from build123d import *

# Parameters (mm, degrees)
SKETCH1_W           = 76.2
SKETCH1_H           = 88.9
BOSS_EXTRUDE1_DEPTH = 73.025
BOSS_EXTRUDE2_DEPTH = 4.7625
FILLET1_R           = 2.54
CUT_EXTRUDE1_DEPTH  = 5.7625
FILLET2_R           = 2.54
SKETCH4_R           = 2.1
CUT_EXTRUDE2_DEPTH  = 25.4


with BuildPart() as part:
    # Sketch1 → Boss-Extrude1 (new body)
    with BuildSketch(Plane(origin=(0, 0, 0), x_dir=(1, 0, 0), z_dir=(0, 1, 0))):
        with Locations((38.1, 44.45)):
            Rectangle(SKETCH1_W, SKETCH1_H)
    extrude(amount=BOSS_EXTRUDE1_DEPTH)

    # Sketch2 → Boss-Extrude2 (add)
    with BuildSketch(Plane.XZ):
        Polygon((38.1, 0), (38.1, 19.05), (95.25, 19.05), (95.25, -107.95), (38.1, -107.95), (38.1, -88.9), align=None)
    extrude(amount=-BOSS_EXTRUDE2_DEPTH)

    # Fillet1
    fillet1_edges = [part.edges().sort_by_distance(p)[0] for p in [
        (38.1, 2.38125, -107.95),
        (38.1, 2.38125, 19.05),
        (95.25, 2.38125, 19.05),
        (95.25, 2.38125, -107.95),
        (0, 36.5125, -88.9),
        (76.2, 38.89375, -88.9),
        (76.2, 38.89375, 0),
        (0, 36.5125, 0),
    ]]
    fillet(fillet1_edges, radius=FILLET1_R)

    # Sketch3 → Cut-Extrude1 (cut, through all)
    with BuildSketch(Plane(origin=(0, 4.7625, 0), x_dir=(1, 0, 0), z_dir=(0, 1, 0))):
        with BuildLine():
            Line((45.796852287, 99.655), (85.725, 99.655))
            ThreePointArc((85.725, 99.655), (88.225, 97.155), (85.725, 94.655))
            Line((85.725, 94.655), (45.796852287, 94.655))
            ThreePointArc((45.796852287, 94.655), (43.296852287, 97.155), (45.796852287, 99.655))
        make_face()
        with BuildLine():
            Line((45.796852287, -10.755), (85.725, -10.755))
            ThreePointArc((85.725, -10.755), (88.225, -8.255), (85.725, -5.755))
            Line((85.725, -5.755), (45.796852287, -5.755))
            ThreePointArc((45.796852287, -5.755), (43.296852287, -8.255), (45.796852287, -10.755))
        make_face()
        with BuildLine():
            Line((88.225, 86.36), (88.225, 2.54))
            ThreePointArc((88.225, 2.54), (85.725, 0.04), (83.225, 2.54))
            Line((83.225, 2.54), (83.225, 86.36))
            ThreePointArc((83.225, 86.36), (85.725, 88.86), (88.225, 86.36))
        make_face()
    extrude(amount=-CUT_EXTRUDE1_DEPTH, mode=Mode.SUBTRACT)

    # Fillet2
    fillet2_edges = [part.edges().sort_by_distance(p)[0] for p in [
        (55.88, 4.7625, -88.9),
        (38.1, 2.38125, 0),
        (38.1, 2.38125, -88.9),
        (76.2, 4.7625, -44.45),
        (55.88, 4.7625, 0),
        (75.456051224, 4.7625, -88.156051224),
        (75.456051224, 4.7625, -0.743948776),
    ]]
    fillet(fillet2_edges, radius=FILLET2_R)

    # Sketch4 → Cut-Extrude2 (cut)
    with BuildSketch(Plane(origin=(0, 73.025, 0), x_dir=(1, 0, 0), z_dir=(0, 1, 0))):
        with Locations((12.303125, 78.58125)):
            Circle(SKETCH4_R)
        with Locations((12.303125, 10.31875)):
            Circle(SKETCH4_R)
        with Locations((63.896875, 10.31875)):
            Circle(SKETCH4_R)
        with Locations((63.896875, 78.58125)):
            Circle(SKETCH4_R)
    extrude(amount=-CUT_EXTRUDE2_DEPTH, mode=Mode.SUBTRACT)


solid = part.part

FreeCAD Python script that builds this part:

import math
import FreeCAD as App
import Part
import Sketcher

V = App.Vector
Q = App.Units.Quantity


def edges_at(feature, points):
    """Names of the edges that pass closest to the given points."""
    edges = feature.Shape.Edges
    near = lambda p: min(range(len(edges)), key=lambda i: edges[i].distToShape(Part.Vertex(*p))[0])
    return sorted({f"Edge{near(p) + 1}" for p in points})

doc = App.newDocument("Part")
body = doc.addObject("PartDesign::Body", "Body")

sketch1 = doc.addObject("Sketcher::SketchObject", "Sketch")
body.addObject(sketch1)
sketch1.AttachmentSupport = (doc.XZ_Plane, [""])
sketch1.MapMode = "FlatFace"
sketch1.addGeometry([
    Part.LineSegment(V(0, -88.9, 0), V(0, 0, 0)),
    Part.LineSegment(V(0, 0, 0), V(76.2, 0, 0)),
    Part.LineSegment(V(76.2, 0, 0), V(76.2, -88.9, 0)),
    Part.LineSegment(V(76.2, -88.9, 0), V(0, -88.9, 0)),
], False)
sketch1.addConstraint([
    Sketcher.Constraint("Coincident", 0, 2, 1, 1),
    Sketcher.Constraint("Coincident", 1, 2, 2, 1),
    Sketcher.Constraint("Coincident", 2, 2, 3, 1),
    Sketcher.Constraint("Coincident", 3, 2, 0, 1),
    Sketcher.Constraint("Vertical", 0),
    Sketcher.Constraint("Horizontal", 1),
    Sketcher.Constraint("Vertical", 2),
    Sketcher.Constraint("Horizontal", 3),
    Sketcher.Constraint("Coincident", 0, 2, -1, 1),
    Sketcher.Constraint("DistanceX", 1, 1, 1, 2, Q("3 in")),
    Sketcher.Constraint("DistanceY", 0, 1, 0, 2, Q("3.5 in")),
])
pad1 = doc.addObject("PartDesign::Pad", "Pad")
body.addObject(pad1)
pad1.Profile = sketch1
pad1.Length = Q("2.875 in")
pad1.Reversed = True

sketch2 = doc.addObject("Sketcher::SketchObject", "Sketch001")
body.addObject(sketch2)
sketch2.AttachmentSupport = (doc.XZ_Plane, [""])
sketch2.MapMode = "FlatFace"
sketch2.addGeometry([
    Part.LineSegment(V(38.1, 19.05, 0), V(38.1, -107.95, 0)),
    Part.LineSegment(V(38.1, -107.95, 0), V(95.25, -107.95, 0)),
    Part.LineSegment(V(95.25, -107.95, 0), V(95.25, 19.05, 0)),
    Part.LineSegment(V(95.25, 19.05, 0), V(38.1, 19.05, 0)),
], False)
sketch2.addConstraint([
    Sketcher.Constraint("Coincident", 0, 2, 1, 1),
    Sketcher.Constraint("Coincident", 1, 2, 2, 1),
    Sketcher.Constraint("Coincident", 2, 2, 3, 1),
    Sketcher.Constraint("Coincident", 3, 2, 0, 1),
    Sketcher.Constraint("Vertical", 0),
    Sketcher.Constraint("Horizontal", 1),
    Sketcher.Constraint("Vertical", 2),
    Sketcher.Constraint("Horizontal", 3),
    Sketcher.Constraint("DistanceY", 0, 2, 0, 1, Q("5 in")),
    Sketcher.Constraint("DistanceX", 1, 1, 1, 2, Q("2.25 in")),
    Sketcher.Constraint("DistanceX", -1, 1, 0, 2, Q("1.5 in")),
    Sketcher.Constraint("DistanceY", 0, 2, -1, 1, Q("4.25 in")),
])
pad2 = doc.addObject("PartDesign::Pad", "Pad001")
body.addObject(pad2)
pad2.Profile = sketch2
pad2.Length = Q("0.1875 in")
pad2.Reversed = True
doc.recompute()

fillet = doc.addObject("PartDesign::Fillet", "Fillet")
body.addObject(fillet)
fillet.Base = (pad2, edges_at(pad2, [
    (38.1, 2.381, -107.95),
    (38.1, 2.381, 19.05),
    (95.25, 2.381, 19.05),
    (95.25, 2.381, -107.95),
    (0, 36.513, -88.9),
    (76.2, 38.894, -88.9),
    (76.2, 38.894, 0),
    (0, 36.513, 0),
]))
fillet.Radius = Q("0.1 in")

sketch3 = doc.addObject("Sketcher::SketchObject", "Sketch002")
body.addObject(sketch3)
sketch3.AttachmentSupport = (doc.XZ_Plane, [""])
sketch3.MapMode = "FlatFace"
sketch3.AttachmentOffset = App.Placement(V(0, 0, -0.1875 * 25.4), App.Rotation())
sketch3.addGeometry([
    Part.LineSegment(V(85.725, -99.655, 0), V(45.796852, -99.655, 0)),
    Part.ArcOfCircle(Part.Circle(V(45.796852, -97.155, 0), V(0, 0, 1), 2.5), math.radians(90), math.radians(270)),
    Part.LineSegment(V(45.796852, -94.655, 0), V(85.725, -94.655, 0)),
    Part.ArcOfCircle(Part.Circle(V(85.725, -97.155, 0), V(0, 0, 1), 2.5), math.radians(-90), math.radians(90)),
    Part.LineSegment(V(45.796852, 10.755, 0), V(85.725, 10.755, 0)),
    Part.ArcOfCircle(Part.Circle(V(85.725, 8.255, 0), V(0, 0, 1), 2.5), math.radians(-90), math.radians(90)),
    Part.LineSegment(V(85.725, 5.755, 0), V(45.796852, 5.755, 0)),
    Part.ArcOfCircle(Part.Circle(V(45.796852, 8.255, 0), V(0, 0, 1), 2.5), math.radians(90), math.radians(270)),
    Part.LineSegment(V(88.225, -2.54, 0), V(88.225, -86.36, 0)),
    Part.ArcOfCircle(Part.Circle(V(85.725, -86.36, 0), V(0, 0, 1), 2.5), math.radians(180), math.radians(360)),
    Part.LineSegment(V(83.225, -86.36, 0), V(83.225, -2.54, 0)),
    Part.ArcOfCircle(Part.Circle(V(85.725, -2.54, 0), V(0, 0, 1), 2.5), math.radians(0), math.radians(180)),
], False)
sketch3.addConstraint([
    Sketcher.Constraint("Tangent", 0, 2, 1, 2),
    Sketcher.Constraint("Tangent", 1, 1, 2, 1),
    Sketcher.Constraint("Tangent", 2, 2, 3, 2),
    Sketcher.Constraint("Tangent", 3, 1, 0, 1),
    Sketcher.Constraint("Tangent", 4, 2, 5, 2),
    Sketcher.Constraint("Tangent", 5, 1, 6, 1),
    Sketcher.Constraint("Tangent", 6, 2, 7, 2),
    Sketcher.Constraint("Tangent", 7, 1, 4, 1),
    Sketcher.Constraint("Tangent", 8, 2, 9, 2),
    Sketcher.Constraint("Tangent", 9, 1, 10, 1),
    Sketcher.Constraint("Tangent", 10, 2, 11, 2),
    Sketcher.Constraint("Tangent", 11, 1, 8, 1),
    Sketcher.Constraint("Horizontal", 0),
    Sketcher.Constraint("Horizontal", 2),
    Sketcher.Constraint("Horizontal", 4),
    Sketcher.Constraint("Horizontal", 6),
    Sketcher.Constraint("Vertical", 8),
    Sketcher.Constraint("Vertical", 10),
    Sketcher.Constraint("Equal", 3, 5),
    Sketcher.Constraint("Equal", 7, 9),
    Sketcher.Constraint("Vertical", 3, 3, 5, 3),
    Sketcher.Constraint("Vertical", 1, 3, 7, 3),
    Sketcher.Constraint("Vertical", 5, 3, 9, 3),
    Sketcher.Constraint("DistanceY", 8, 2, 8, 1, Q("3.3 in")),
    Sketcher.Constraint("DistanceY", 9, 3, -1, 1, Q("3.4 in")),
    Sketcher.Constraint("Radius", 1, Q("2.5 mm")),
    Sketcher.Constraint("DistanceY", 3, 3, 5, 3, Q("4.15 in")),
    Sketcher.Constraint("DistanceY", 1, 3, -1, 1, Q("3.825 in")),
    Sketcher.Constraint("DistanceX", -1, 1, 3, 3, Q("3.375 in")),
    Sketcher.Constraint("DistanceX", 0, 2, 0, 1, Q("39.928148 mm")),
])
pocket1 = doc.addObject("PartDesign::Pocket", "Pocket")
body.addObject(pocket1)
pocket1.Profile = sketch3
pocket1.Type = "ThroughAll"
pocket1.Reversed = True
doc.recompute()

fillet2 = doc.addObject("PartDesign::Fillet", "Fillet001")
body.addObject(fillet2)
fillet2.Base = (pocket1, edges_at(pocket1, [
    (55.88, 4.763, -88.9),
    (38.1, 2.381, 0),
    (38.1, 2.381, -88.9),
    (76.2, 4.763, -44.45),
    (55.88, 4.763, 0),
    (75.456, 4.763, -88.156),
    (75.456, 4.763, -0.744),
]))
fillet2.Radius = Q("0.1 in")

sketch4 = doc.addObject("Sketcher::SketchObject", "Sketch003")
body.addObject(sketch4)
sketch4.AttachmentSupport = (doc.XZ_Plane, [""])
sketch4.MapMode = "FlatFace"
sketch4.AttachmentOffset = App.Placement(V(0, 0, -2.875 * 25.4), App.Rotation())
sketch4.addGeometry([
    Part.Circle(V(12.303125, -78.58125, 0), V(0, 0, 1), 2.1),
    Part.Circle(V(12.303125, -10.31875, 0), V(0, 0, 1), 2.1),
    Part.Circle(V(63.896875, -10.31875, 0), V(0, 0, 1), 2.1),
    Part.Circle(V(63.896875, -78.58125, 0), V(0, 0, 1), 2.1),
], False)
sketch4.addConstraint([
    Sketcher.Constraint("Equal", 0, 1),
    Sketcher.Constraint("Equal", 1, 2),
    Sketcher.Constraint("Equal", 2, 3),
    Sketcher.Constraint("Horizontal", 1, 3, 2, 3),
    Sketcher.Constraint("Horizontal", 0, 3, 3, 3),
    Sketcher.Constraint("Vertical", 0, 3, 1, 3),
    Sketcher.Constraint("Vertical", 2, 3, 3, 3),
    Sketcher.Constraint("Diameter", 0, Q("4.2 mm")),
    Sketcher.Constraint("DistanceX", -1, 1, 0, 3, Q("0.484375 in")),
    Sketcher.Constraint("DistanceY", 0, 3, -1, 1, Q("3.09375 in")),
    Sketcher.Constraint("DistanceY", 1, 3, -1, 1, Q("0.40625 in")),
    Sketcher.Constraint("DistanceX", -1, 1, 2, 3, Q("2.515625 in")),
])
pocket2 = doc.addObject("PartDesign::Pocket", "Pocket001")
body.addObject(pocket2)
pocket2.Profile = sketch4
pocket2.Length = Q("1 in")
pocket2.Reversed = True

doc.recompute()
